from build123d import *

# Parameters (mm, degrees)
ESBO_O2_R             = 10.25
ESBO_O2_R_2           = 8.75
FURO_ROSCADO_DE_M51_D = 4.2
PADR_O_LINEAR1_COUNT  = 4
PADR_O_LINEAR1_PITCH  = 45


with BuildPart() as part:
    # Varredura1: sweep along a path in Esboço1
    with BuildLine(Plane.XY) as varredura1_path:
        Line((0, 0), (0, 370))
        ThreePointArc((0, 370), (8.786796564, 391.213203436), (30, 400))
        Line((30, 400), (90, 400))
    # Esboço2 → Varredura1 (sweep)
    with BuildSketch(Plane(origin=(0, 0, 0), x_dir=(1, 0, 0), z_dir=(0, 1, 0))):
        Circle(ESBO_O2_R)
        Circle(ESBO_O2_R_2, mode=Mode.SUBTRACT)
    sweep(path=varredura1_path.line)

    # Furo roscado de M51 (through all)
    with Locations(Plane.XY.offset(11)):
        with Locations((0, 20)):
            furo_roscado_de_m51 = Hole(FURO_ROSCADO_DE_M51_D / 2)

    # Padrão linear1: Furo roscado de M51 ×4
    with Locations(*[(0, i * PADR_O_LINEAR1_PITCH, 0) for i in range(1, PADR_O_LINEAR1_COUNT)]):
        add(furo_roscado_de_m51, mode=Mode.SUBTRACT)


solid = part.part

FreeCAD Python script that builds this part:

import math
import FreeCAD as App
import Part
import Sketcher
Q = App.Units.Quantity

doc = App.newDocument("Part")
body = doc.addObject("PartDesign::Body", "Body")

sketch1 = body.newObject("Sketcher::SketchObject", "Sketch")
sketch1.AttachmentSupport = (doc.getObject("XZ_Plane"), [""])
sketch1.MapMode = "FlatFace"
sketch1.addGeometry([
    Part.Circle(App.Vector(0, 0, 0), App.Vector(0, 0, 1), 10),
    Part.Circle(App.Vector(0, 0, 0), App.Vector(0, 0, 1), 9),
], False)
sketch1.addConstraint([
    Sketcher.Constraint("Coincident", 0, 3, -1, 1),
    Sketcher.Constraint("Coincident", 1, 3, -1, 1),
    Sketcher.Constraint("Diameter", 0, Q("20.5 mm")),
    Sketcher.Constraint("Diameter", 1, Q("17.5 mm")),
])

sketch2 = body.newObject("Sketcher::SketchObject", "Sketch001")
sketch2.AttachmentSupport = (doc.getObject("XY_Plane"), [""])
sketch2.MapMode = "FlatFace"
sketch2.addGeometry([
    Part.LineSegment(App.Vector(0, 0, 0), App.Vector(0, 370, 0)),
    Part.ArcOfCircle(Part.Circle(App.Vector(30, 370, 0), App.Vector(0, 0, 1), 30), math.radians(90), math.radians(180)),
    Part.LineSegment(App.Vector(30, 400, 0), App.Vector(90, 400, 0)),
], False)
sketch2.addConstraint([
    Sketcher.Constraint("Tangent", 0, 2, 1, 2),
    Sketcher.Constraint("Tangent", 1, 1, 2, 1),
    Sketcher.Constraint("Vertical", 0),
    Sketcher.Constraint("Horizontal", 2),
    Sketcher.Constraint("Coincident", 0, 1, -1, 1),
    Sketcher.Constraint("Radius", 1, Q("30 mm")),
    Sketcher.Constraint("DistanceX", 2, 1, 2, 2, Q("60 mm")),
    Sketcher.Constraint("DistanceY", 0, 1, 0, 2, Q("370 mm")),
])
doc.recompute()

additivepipe = body.newObject("PartDesign::AdditivePipe", "AdditivePipe")
additivepipe.Profile = sketch1
additivepipe.Spine = (sketch2, ["Edge1", "Edge2", "Edge3"])

sketch3 = body.newObject("Sketcher::SketchObject", "Sketch002")
sketch3.AttachmentSupport = (doc.getObject("XY_Plane"), [""])
sketch3.MapMode = "FlatFace"
sketch3.AttachmentOffset = App.Placement(App.Vector(0, 0, 11), App.Rotation())
sketch3.addGeometry(Part.Circle(App.Vector(0, 20, 0), App.Vector(0, 0, 1), 2.1), False)
sketch3.addConstraint([
    Sketcher.Constraint("PointOnObject", 0, 3, -2),
    Sketcher.Constraint("Diameter", 0, Q("4.2 mm")),
    Sketcher.Constraint("DistanceY", -1, 1, 0, 3, Q("20 mm")),
])
doc.recompute()
hole = body.newObject("PartDesign::Hole", "Hole")
hole.Profile = sketch3
hole.ThreadType = "None"
hole.Diameter = 4.2
hole.DepthType = "ThroughAll"
doc.recompute()

linearpattern = body.newObject("PartDesign::LinearPattern", "LinearPattern")
linearpattern.Originals = [hole]
linearpattern.Direction = (doc.getObject("Y_Axis"), [""])
linearpattern.Mode = "offset"
linearpattern.Offset = 45
linearpattern.Occurrences = 4
body.Tip = linearpattern

doc.recompute()
